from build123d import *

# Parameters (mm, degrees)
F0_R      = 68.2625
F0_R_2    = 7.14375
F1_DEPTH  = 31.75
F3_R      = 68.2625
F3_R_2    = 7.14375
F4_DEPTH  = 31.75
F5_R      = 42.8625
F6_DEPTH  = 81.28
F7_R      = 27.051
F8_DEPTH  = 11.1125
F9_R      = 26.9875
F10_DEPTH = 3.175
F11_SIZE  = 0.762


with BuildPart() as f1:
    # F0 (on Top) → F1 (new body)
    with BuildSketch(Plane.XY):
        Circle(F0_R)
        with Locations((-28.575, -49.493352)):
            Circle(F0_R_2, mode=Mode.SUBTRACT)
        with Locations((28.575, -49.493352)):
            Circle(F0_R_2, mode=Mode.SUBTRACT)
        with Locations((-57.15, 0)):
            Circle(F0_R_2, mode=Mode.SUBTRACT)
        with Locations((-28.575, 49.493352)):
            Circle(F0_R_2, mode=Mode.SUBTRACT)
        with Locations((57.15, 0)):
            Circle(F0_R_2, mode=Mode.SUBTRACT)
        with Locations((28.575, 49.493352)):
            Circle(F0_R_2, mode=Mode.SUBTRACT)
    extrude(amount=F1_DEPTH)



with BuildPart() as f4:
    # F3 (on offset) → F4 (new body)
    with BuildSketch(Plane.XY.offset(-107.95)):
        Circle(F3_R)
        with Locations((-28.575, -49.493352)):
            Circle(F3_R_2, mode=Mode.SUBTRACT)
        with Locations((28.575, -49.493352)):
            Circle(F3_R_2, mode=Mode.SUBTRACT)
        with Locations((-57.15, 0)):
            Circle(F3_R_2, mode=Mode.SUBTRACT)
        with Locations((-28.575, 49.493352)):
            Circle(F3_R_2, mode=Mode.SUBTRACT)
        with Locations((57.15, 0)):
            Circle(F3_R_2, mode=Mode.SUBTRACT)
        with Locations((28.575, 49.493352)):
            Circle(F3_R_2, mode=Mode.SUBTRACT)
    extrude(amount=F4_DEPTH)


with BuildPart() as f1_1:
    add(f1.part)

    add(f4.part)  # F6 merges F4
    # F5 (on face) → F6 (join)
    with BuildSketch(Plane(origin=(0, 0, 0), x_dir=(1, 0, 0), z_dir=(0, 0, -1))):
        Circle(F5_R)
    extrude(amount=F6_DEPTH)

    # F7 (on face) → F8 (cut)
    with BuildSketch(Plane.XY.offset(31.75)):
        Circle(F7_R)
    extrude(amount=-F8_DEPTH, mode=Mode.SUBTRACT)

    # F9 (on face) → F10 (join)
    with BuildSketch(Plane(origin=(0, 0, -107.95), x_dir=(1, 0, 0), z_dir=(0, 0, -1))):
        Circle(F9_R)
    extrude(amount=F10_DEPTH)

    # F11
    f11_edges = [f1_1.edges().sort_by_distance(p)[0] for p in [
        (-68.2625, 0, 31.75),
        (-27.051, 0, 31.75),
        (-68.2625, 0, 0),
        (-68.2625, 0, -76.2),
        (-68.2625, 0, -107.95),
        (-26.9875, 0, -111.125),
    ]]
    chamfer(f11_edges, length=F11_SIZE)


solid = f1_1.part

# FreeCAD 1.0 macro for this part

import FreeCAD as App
import Part
import Sketcher
Q = App.Units.Quantity


def edges_at(feature, points):
    """Names of the edges that pass closest to the given points."""
    edges = feature.Shape.Edges
    near = lambda p: min(range(len(edges)), key=lambda i: edges[i].distToShape(Part.Vertex(*p))[0])
    return sorted({f"Edge{near(p) + 1}" for p in points})

doc = App.newDocument("Part")
body = doc.addObject("PartDesign::Body", "Body")

sketch1 = doc.addObject("Sketcher::SketchObject", "Sketch")
body.addObject(sketch1)
sketch1.AttachmentSupport = (doc.XY_Plane, [""])
sketch1.MapMode = "FlatFace"
sketch1.addGeometry([
    Part.Circle(App.Vector(0, 0, 0), App.Vector(0, 0, 1), 68),
    Part.Circle(App.Vector(-29, -49, 0), App.Vector(0, 0, 1), 7),
    Part.Circle(App.Vector(29, -49, 0), App.Vector(0, 0, 1), 7),
    Part.Circle(App.Vector(-57, 0, 0), App.Vector(0, 0, 1), 7),
    Part.Circle(App.Vector(-29, 49, 0), App.Vector(0, 0, 1), 7),
    Part.Circle(App.Vector(57, 0, 0), App.Vector(0, 0, 1), 7),
    Part.Circle(App.Vector(29, 49, 0), App.Vector(0, 0, 1), 7),
], False)
sketch1.addConstraint([
    Sketcher.Constraint("Coincident", 0, 3, -1, 1),
    Sketcher.Constraint("Equal", 1, 2),
    Sketcher.Constraint("Equal", 2, 3),
    Sketcher.Constraint("Equal", 3, 4),
    Sketcher.Constraint("Equal", 4, 5),
    Sketcher.Constraint("Equal", 5, 6),
    Sketcher.Constraint("Symmetric", 2, 3, 4, 3, -1, 1),
    Sketcher.Constraint("Symmetric", 3, 3, 5, 3, -1, 1),
    Sketcher.Constraint("Symmetric", 1, 3, 6, 3, -1, 1),
    Sketcher.Constraint("Symmetric", 1, 3, 2, 3, -2),
    Sketcher.Constraint("PointOnObject", 3, 3, -1),
    Sketcher.Constraint("Diameter", 0, Q("5.375 in")),
    Sketcher.Constraint("Diameter", 1, Q("0.5625 in")),
    Sketcher.Constraint("DistanceX", 3, 3, 5, 3, Q("4.5 in")),
    Sketcher.Constraint("DistanceX", 1, 3, 2, 3, Q("2.25 in")),
    Sketcher.Constraint("DistanceY", 1, 3, -1, 1, Q("49.493352 mm")),
])
pad1 = doc.addObject("PartDesign::Pad", "Pad")
body.addObject(pad1)
pad1.Profile = sketch1
pad1.Length = Q("1.25 in")
body2 = doc.addObject("PartDesign::Body", "Body001")

sketch2 = doc.addObject("Sketcher::SketchObject", "Sketch001")
body2.addObject(sketch2)
sketch2.AttachmentSupport = (doc.getObject("XY_Plane001"), [""])
sketch2.MapMode = "FlatFace"
sketch2.AttachmentOffset = App.Placement(App.Vector(0, 0, -4.25 * 25.4), App.Rotation())
sketch2.addGeometry([
    Part.Circle(App.Vector(0, 0, 0), App.Vector(0, 0, 1), 68),
    Part.Circle(App.Vector(-29, -49, 0), App.Vector(0, 0, 1), 7),
    Part.Circle(App.Vector(29, -49, 0), App.Vector(0, 0, 1), 7),
    Part.Circle(App.Vector(-57, 0, 0), App.Vector(0, 0, 1), 7),
    Part.Circle(App.Vector(-29, 49, 0), App.Vector(0, 0, 1), 7),
    Part.Circle(App.Vector(57, 0, 0), App.Vector(0, 0, 1), 7),
    Part.Circle(App.Vector(29, 49, 0), App.Vector(0, 0, 1), 7),
], False)
sketch2.addConstraint([
    Sketcher.Constraint("Coincident", 0, 3, -1, 1),
    Sketcher.Constraint("Equal", 1, 2),
    Sketcher.Constraint("Equal", 2, 3),
    Sketcher.Constraint("Equal", 3, 4),
    Sketcher.Constraint("Equal", 4, 5),
    Sketcher.Constraint("Equal", 5, 6),
    Sketcher.Constraint("Symmetric", 2, 3, 4, 3, -1, 1),
    Sketcher.Constraint("Symmetric", 3, 3, 5, 3, -1, 1),
    Sketcher.Constraint("Symmetric", 1, 3, 6, 3, -1, 1),
    Sketcher.Constraint("Symmetric", 1, 3, 2, 3, -2),
    Sketcher.Constraint("PointOnObject", 3, 3, -1),
    Sketcher.Constraint("Diameter", 0, Q("5.375 in")),
    Sketcher.Constraint("Diameter", 1, Q("0.5625 in")),
    Sketcher.Constraint("DistanceX", 3, 3, 5, 3, Q("4.5 in")),
    Sketcher.Constraint("DistanceX", 1, 3, 2, 3, Q("2.25 in")),
    Sketcher.Constraint("DistanceY", 1, 3, -1, 1, Q("49.493352 mm")),
])
pad2 = doc.addObject("PartDesign::Pad", "Pad001")
body2.addObject(pad2)
pad2.Profile = sketch2
pad2.Length = Q("1.25 in")
body.AllowCompound = True
doc.recompute()

boolean = doc.addObject("PartDesign::Boolean", "Boolean")
body.addObject(boolean)
boolean.Type = "Fuse"
boolean.addObjects([body2])

sketch3 = doc.addObject("Sketcher::SketchObject", "Sketch002")
body.addObject(sketch3)
sketch3.AttachmentSupport = (doc.XY_Plane, [""])
sketch3.MapMode = "FlatFace"
sketch3.addGeometry(Part.Circle(App.Vector(0, 0, 0), App.Vector(0, 0, 1), 43), False)
sketch3.addConstraint([
    Sketcher.Constraint("Coincident", 0, 3, -1, 1),
    Sketcher.Constraint("Diameter", 0, Q("3.375 in")),
])
pad3 = doc.addObject("PartDesign::Pad", "Pad002")
body.addObject(pad3)
pad3.Profile = sketch3
pad3.Length = Q("3.2 in")
pad3.Reversed = True

sketch4 = doc.addObject("Sketcher::SketchObject", "Sketch003")
body.addObject(sketch4)
sketch4.AttachmentSupport = (doc.XY_Plane, [""])
sketch4.MapMode = "FlatFace"
sketch4.AttachmentOffset = App.Placement(App.Vector(0, 0, 1.25 * 25.4), App.Rotation())
sketch4.addGeometry(Part.Circle(App.Vector(0, 0, 0), App.Vector(0, 0, 1), 27), False)
sketch4.addConstraint([
    Sketcher.Constraint("Coincident", 0, 3, -1, 1),
    Sketcher.Constraint("Diameter", 0, Q("2.13 in")),
])
pocket1 = doc.addObject("PartDesign::Pocket", "Pocket")
body.addObject(pocket1)
pocket1.Profile = sketch4
pocket1.Length = Q("0.4375 in")

sketch5 = doc.addObject("Sketcher::SketchObject", "Sketch004")
body.addObject(sketch5)
sketch5.AttachmentSupport = (doc.XY_Plane, [""])
sketch5.MapMode = "FlatFace"
sketch5.AttachmentOffset = App.Placement(App.Vector(0, 0, -4.25 * 25.4), App.Rotation())
sketch5.addGeometry(Part.Circle(App.Vector(0, 0, 0), App.Vector(0, 0, 1), 27), False)
sketch5.addConstraint([
    Sketcher.Constraint("Coincident", 0, 3, -1, 1),
    Sketcher.Constraint("Diameter", 0, Q("2.125 in")),
])
pad4 = doc.addObject("PartDesign::Pad", "Pad003")
body.addObject(pad4)
pad4.Profile = sketch5
pad4.Length = Q("0.125 in")
pad4.Reversed = True
doc.recompute()

chamfer = doc.addObject("PartDesign::Chamfer", "Chamfer")
body.addObject(chamfer)
chamfer.Base = (pad4, edges_at(pad4, [
    (-68.263, 0, 31.75),
    (-27.051, 0, 31.75),
    (-68.263, 0, 0),
    (-68.263, 0, -76.2),
    (-68.263, 0, -107.95),
    (-26.988, 0, -111.125),
]))
chamfer.Size = Q("0.03 in")

doc.recompute()
